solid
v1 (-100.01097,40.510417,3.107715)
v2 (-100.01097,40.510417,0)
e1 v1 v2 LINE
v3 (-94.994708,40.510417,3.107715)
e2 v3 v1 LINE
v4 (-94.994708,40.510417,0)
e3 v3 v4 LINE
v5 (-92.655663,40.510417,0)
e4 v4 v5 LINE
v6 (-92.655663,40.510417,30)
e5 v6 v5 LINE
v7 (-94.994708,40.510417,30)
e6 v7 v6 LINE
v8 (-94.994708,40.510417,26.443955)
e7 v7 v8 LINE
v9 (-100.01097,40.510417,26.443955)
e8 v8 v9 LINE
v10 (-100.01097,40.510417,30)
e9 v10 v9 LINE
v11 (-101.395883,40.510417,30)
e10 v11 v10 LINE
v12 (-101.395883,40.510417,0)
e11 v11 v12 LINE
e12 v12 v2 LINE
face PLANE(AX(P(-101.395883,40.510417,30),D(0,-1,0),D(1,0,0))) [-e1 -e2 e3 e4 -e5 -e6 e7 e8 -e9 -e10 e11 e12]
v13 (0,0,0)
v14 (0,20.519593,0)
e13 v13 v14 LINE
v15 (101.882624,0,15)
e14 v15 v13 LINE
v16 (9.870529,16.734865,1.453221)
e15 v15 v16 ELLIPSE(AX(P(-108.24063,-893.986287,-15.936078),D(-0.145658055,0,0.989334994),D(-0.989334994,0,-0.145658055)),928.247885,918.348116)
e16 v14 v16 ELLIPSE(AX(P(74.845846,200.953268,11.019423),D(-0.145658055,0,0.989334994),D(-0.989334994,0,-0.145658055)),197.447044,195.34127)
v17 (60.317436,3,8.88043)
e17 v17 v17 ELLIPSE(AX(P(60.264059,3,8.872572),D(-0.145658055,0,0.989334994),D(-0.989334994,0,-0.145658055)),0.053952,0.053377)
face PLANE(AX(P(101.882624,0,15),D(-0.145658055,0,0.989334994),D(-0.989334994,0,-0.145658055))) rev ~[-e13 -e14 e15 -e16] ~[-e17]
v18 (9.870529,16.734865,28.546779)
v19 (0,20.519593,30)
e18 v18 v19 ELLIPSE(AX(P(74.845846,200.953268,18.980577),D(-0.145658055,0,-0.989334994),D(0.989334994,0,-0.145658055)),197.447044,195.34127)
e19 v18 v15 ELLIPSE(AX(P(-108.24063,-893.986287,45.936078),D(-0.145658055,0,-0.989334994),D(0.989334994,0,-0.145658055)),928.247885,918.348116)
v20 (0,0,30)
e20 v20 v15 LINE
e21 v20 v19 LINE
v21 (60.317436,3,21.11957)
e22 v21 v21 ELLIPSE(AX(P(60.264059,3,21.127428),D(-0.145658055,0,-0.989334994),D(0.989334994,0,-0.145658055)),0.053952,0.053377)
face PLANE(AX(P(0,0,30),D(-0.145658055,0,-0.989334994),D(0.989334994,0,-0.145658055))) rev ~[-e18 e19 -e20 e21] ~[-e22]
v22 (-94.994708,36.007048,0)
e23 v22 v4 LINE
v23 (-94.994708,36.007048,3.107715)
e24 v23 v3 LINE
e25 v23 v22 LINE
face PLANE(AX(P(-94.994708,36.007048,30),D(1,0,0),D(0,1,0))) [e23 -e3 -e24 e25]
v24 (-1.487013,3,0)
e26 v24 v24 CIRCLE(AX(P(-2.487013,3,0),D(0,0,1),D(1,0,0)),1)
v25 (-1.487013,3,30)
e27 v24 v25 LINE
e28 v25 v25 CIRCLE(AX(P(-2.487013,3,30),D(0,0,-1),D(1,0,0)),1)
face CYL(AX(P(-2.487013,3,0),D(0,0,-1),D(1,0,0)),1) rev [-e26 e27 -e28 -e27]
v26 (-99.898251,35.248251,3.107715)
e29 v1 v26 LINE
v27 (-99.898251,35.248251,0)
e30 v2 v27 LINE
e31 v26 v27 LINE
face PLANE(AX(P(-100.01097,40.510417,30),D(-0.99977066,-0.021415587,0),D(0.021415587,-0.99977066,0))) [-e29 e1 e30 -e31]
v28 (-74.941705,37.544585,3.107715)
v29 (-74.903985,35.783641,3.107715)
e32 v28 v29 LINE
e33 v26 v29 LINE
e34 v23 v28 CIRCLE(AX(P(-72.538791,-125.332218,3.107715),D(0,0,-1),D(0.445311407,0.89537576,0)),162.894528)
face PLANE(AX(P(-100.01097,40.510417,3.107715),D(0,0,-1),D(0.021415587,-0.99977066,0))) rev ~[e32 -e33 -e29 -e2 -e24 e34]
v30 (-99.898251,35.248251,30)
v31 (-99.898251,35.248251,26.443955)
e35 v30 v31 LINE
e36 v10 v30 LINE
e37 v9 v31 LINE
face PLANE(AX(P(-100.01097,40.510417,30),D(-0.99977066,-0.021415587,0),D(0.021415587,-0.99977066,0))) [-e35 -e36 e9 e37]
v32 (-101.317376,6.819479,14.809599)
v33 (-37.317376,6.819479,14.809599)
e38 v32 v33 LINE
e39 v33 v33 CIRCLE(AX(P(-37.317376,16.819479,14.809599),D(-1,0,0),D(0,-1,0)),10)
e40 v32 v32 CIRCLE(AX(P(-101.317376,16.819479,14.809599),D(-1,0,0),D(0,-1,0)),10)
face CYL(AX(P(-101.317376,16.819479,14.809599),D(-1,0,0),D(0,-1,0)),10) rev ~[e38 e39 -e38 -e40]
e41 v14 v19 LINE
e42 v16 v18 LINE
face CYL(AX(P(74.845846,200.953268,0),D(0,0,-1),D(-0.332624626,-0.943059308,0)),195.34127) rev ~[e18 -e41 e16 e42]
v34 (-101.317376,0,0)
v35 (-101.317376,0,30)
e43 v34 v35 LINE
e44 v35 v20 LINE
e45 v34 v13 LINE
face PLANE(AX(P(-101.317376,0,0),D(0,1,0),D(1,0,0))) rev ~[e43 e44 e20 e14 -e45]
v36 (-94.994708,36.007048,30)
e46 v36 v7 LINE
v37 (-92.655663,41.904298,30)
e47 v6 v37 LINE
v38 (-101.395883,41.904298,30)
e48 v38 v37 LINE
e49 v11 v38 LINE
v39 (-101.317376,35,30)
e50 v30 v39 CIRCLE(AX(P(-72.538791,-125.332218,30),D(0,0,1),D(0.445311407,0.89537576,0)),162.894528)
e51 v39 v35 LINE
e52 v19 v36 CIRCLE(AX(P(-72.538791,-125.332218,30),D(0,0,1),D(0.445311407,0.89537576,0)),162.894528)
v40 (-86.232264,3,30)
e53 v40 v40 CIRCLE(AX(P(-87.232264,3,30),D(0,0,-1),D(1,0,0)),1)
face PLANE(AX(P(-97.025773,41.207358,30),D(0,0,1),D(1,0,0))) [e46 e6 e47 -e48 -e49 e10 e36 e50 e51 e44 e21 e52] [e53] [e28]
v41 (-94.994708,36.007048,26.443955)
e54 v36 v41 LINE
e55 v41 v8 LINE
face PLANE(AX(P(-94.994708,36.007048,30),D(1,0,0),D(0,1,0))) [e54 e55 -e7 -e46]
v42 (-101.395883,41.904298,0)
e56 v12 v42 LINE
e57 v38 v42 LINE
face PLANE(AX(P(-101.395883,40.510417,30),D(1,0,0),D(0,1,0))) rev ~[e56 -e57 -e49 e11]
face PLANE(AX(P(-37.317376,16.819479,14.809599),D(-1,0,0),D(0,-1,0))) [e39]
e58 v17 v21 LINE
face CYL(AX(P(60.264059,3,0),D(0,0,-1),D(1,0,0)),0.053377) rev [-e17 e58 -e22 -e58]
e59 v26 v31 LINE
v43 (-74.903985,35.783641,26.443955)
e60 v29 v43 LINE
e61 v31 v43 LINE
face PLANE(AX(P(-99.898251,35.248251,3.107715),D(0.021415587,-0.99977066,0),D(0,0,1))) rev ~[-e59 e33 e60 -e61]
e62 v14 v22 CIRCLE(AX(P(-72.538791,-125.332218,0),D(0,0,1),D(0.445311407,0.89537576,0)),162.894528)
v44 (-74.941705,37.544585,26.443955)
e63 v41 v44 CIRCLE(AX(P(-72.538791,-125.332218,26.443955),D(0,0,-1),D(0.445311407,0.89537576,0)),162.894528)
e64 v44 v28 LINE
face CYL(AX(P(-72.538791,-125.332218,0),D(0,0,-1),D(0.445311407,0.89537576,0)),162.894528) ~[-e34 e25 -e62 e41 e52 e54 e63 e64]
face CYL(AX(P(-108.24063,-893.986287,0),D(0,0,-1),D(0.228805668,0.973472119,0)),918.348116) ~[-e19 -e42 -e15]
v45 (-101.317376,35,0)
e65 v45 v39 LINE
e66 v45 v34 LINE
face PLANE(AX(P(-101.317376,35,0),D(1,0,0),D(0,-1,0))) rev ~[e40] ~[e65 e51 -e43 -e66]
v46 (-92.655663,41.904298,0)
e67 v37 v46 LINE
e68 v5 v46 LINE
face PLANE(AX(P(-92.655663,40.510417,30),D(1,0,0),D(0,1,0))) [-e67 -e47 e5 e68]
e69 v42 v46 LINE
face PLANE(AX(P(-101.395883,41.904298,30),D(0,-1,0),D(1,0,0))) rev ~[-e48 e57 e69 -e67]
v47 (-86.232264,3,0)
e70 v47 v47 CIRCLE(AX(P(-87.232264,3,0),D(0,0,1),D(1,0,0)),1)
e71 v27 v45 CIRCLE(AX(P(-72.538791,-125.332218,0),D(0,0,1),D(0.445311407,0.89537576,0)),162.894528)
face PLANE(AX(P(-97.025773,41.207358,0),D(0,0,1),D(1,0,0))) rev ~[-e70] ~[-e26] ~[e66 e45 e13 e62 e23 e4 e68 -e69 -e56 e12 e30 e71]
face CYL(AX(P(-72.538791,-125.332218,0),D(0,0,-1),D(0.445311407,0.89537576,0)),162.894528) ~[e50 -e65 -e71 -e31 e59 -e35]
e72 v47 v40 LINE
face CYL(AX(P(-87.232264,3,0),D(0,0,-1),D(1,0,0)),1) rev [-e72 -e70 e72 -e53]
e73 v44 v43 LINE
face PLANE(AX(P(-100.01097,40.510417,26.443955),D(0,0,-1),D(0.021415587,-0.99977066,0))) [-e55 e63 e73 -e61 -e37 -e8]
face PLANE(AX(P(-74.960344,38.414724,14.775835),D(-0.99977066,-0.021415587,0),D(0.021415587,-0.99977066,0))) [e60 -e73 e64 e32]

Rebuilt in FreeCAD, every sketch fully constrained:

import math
import FreeCAD as App
import Part
import Sketcher

V = App.Vector
Q = App.Units.Quantity

doc = App.newDocument("Part")
body = doc.addObject("PartDesign::Body", "Body")

# Sketch on XY plane
sketch1 = body.newObject("Sketcher::SketchObject", "Sketch")
sketch1.AttachmentSupport = (doc.getObject("XY_Plane"), [""])
sketch1.MapMode = "FlatFace"
sketch1.addGeometry([
    Part.LineSegment(V(-101, 35, 0), V(-101, 0, 0)),  # 0
    Part.LineSegment(V(-101, 0, 0), V(102, 0, 0)),  # 1
    Part.ArcOfCircle(Part.Circle(V(-108, -894, 0), V(0, 0, 1), 918), math.radians(76.77), math.radians(82.61)),  # 2
    Part.ArcOfCircle(Part.Circle(V(75, 201, 0), V(0, 0, 1), 195), math.radians(-112.53), math.radians(-109.43)),  # 3
    Part.ArcOfCircle(Part.Circle(V(-73, -125, 0), V(0, 0, 1), 163), math.radians(64), math.radians(100)),  # 4
], False)
sketch1.addConstraint([
    Sketcher.Constraint("Coincident", 0, 2, 1, 1),
    Sketcher.Constraint("Coincident", 1, 2, 2, 1),
    Sketcher.Constraint("Coincident", 2, 2, 3, 2),
    Sketcher.Constraint("Coincident", 3, 1, 4, 1),
    Sketcher.Constraint("Coincident", 4, 2, 0, 1),
    Sketcher.Constraint("Vertical", 0),
    Sketcher.Constraint("Horizontal", 1),
    Sketcher.Constraint("PointOnObject", 0, 2, -1),
    Sketcher.Constraint("PointOnObject", 3, 1, -2),
    Sketcher.Constraint("DistanceY", 0, 2, 0, 1, Q("35 mm")),
    Sketcher.Constraint("DistanceX", 1, 1, 1, 2, Q("203.2 mm")),
    Sketcher.Constraint("Radius", 3, Q("195.34127 mm")),
    Sketcher.Constraint("Radius", 2, Q("918.348116 mm")),
    Sketcher.Constraint("Radius", 4, Q("162.894528 mm")),
    Sketcher.Constraint("DistanceX", 2, 3, -1, 1, Q("108.24063 mm")),
    Sketcher.Constraint("DistanceY", -1, 1, 3, 3, Q("200.953268 mm")),
    Sketcher.Constraint("DistanceX", 4, 3, -1, 1, Q("72.538791 mm")),
    Sketcher.Constraint("DistanceY", 4, 3, -1, 1, Q("125.332218 mm")),
])
pad1 = body.newObject("PartDesign::Pad", "Pad")
pad1.Profile = sketch1
pad1.Length = 30

# Sketch on XY plane
sketch2 = body.newObject("Sketcher::SketchObject", "Sketch001")
sketch2.AttachmentSupport = (doc.getObject("XY_Plane"), [""])
sketch2.MapMode = "FlatFace"
sketch2.addGeometry([
    Part.Circle(V(-87.23, 3, 0), V(0, 0, 1), 1),
    Part.Circle(V(60.26, 3, 0), V(0, 0, 1), 0.05),
    Part.Circle(V(-2.49, 3, 0), V(0, 0, 1), 1),
], False)
sketch2.addConstraint([
    Sketcher.Constraint("Equal", 0, 2),
    Sketcher.Constraint("Horizontal", 0, 3, 1, 3),
    Sketcher.Constraint("Horizontal", 1, 3, 2, 3),
    Sketcher.Constraint("Diameter", 0, Q("2 mm")),
    Sketcher.Constraint("DistanceY", -1, 1, 0, 3, Q("3 mm")),
    Sketcher.Constraint("Diameter", 1, Q("0.106753 mm")),
    Sketcher.Constraint("DistanceX", -1, 1, 1, 3, Q("60.264059 mm")),
    Sketcher.Constraint("DistanceX", 2, 3, 1, 3, Q("62.751072 mm")),
    Sketcher.Constraint("DistanceX", 0, 3, 2, 3, Q("84.745251 mm")),
])
pocket1 = body.newObject("PartDesign::Pocket", "Pocket")
pocket1.Profile = sketch2
pocket1.Type = "ThroughAll"
pocket1.Reversed = True

# Sketch on YZ plane
sketch3 = body.newObject("Sketcher::SketchObject", "Sketch002")
sketch3.AttachmentSupport = (doc.getObject("YZ_Plane"), [""])
sketch3.MapMode = "FlatFace"
sketch3.AttachmentOffset = App.Placement(V(0, 0, -101.317376), App.Rotation())
sketch3.addGeometry(Part.Circle(V(17, 15, 0), V(0, 0, 1), 10), False)
sketch3.addConstraint([
    Sketcher.Constraint("Diameter", 0, Q("20 mm")),
    Sketcher.Constraint("DistanceY", -1, 1, 0, 3, Q("14.809599 mm")),
    Sketcher.Constraint("DistanceX", -1, 1, 0, 3, Q("16.819479 mm")),
])
pocket2 = body.newObject("PartDesign::Pocket", "Pocket001")
pocket2.Profile = sketch3
pocket2.Length = 64
pocket2.Reversed = True

# Sketch on XY plane
sketch4 = body.newObject("Sketcher::SketchObject", "Sketch003")
sketch4.AttachmentSupport = (doc.getObject("XY_Plane"), [""])
sketch4.MapMode = "FlatFace"
sketch4.AttachmentOffset = App.Placement(V(0, 0, 30), App.Rotation())
sketch4.addGeometry([
    Part.LineSegment(V(-100.01097, 40.510417, 0), V(-99.898251, 35.248251, 0)),
    Part.BSplineCurve([V(-99.898251, 35.248251, 0), V(-99.169878, 35.208636, 0), V(-95.59699, 35.716166, 0), V(-94.994708, 36.007048, 0)], [4, 4], [0, 4.961906625], False, 3, [1, 1, 1, 1], False),
    Part.LineSegment(V(-94.994708, 36.007048, 0), V(-94.994708, 40.510417, 0)),
    Part.LineSegment(V(-94.994708, 40.510417, 0), V(-100.01097, 40.510417, 0)),
], False)
sketch4.addConstraint([
    Sketcher.Constraint("Block", 1),
    Sketcher.Constraint("Coincident", 0, 2, 1, 1),
    Sketcher.Constraint("Coincident", 1, 2, 2, 1),
    Sketcher.Constraint("Coincident", 2, 2, 3, 1),
    Sketcher.Constraint("Coincident", 3, 2, 0, 1),
    Sketcher.Constraint("Vertical", 2),
    Sketcher.Constraint("Horizontal", 3),
    Sketcher.Constraint("DistanceY", 2, 1, 2, 2, Q("4.503369 mm")),
    Sketcher.Constraint("DistanceX", 3, 2, 3, 1, Q("5.016262 mm")),
])
pad2 = body.newObject("PartDesign::Pad", "Pad001")
pad2.Profile = sketch4
pad2.Length = 30
pad2.Reversed = True

# Sketch on an angled plane
sketch5 = body.newObject("Sketcher::SketchObject", "Sketch004")
sketch5.Placement = App.Placement(V(-99.097747, -2.122723, 0), App.Rotation(V(0.021415587, -0.99977066, 0), V(0, 0, 1), V(-0.99977066, -0.021415587, 0), "ZXY"))
sketch5.addGeometry([
    Part.LineSegment(V(-43, 26, 0), V(-43, 3, 0)),
    Part.LineSegment(V(-43, 3, 0), V(-37, 3, 0)),
    Part.LineSegment(V(-37, 3, 0), V(-37, 26, 0)),
    Part.LineSegment(V(-37, 26, 0), V(-43, 26, 0)),
], False)
sketch5.addConstraint([
    Sketcher.Constraint("Coincident", 0, 2, 1, 1),
    Sketcher.Constraint("Coincident", 1, 2, 2, 1),
    Sketcher.Constraint("Coincident", 2, 2, 3, 1),
    Sketcher.Constraint("Coincident", 3, 2, 0, 1),
    Sketcher.Constraint("Vertical", 0),
    Sketcher.Constraint("Horizontal", 1),
    Sketcher.Constraint("Vertical", 2),
    Sketcher.Constraint("Horizontal", 3),
    Sketcher.Constraint("DistanceY", 0, 2, 0, 1, Q("23.336239 mm")),
    Sketcher.Constraint("DistanceX", 1, 1, 1, 2, Q("5.263374 mm")),
    Sketcher.Constraint("DistanceX", 0, 2, -1, 1, Q("42.64292 mm")),
    Sketcher.Constraint("DistanceY", -1, 1, 0, 2, Q("3.107715 mm")),
])
pocket3 = body.newObject("PartDesign::Pocket", "Pocket002")
pocket3.Profile = sketch5
pocket3.Length = 25

# Sketch on XY plane
sketch6 = body.newObject("Sketcher::SketchObject", "Sketch005")
sketch6.AttachmentSupport = (doc.getObject("XY_Plane"), [""])
sketch6.MapMode = "FlatFace"
sketch6.AttachmentOffset = App.Placement(V(0, 0, 30), App.Rotation())
sketch6.addGeometry([
    Part.LineSegment(V(-101.4, 41.9, 0), V(-101.4, 40.5, 0)),
    Part.LineSegment(V(-101.4, 40.5, 0), V(-92.7, 40.5, 0)),
    Part.LineSegment(V(-92.7, 40.5, 0), V(-92.7, 41.9, 0)),
    Part.LineSegment(V(-92.7, 41.9, 0), V(-101.4, 41.9, 0)),
], False)
sketch6.addConstraint([
    Sketcher.Constraint("Coincident", 0, 2, 1, 1),
    Sketcher.Constraint("Coincident", 1, 2, 2, 1),
    Sketcher.Constraint("Coincident", 2, 2, 3, 1),
    Sketcher.Constraint("Coincident", 3, 2, 0, 1),
    Sketcher.Constraint("Vertical", 0),
    Sketcher.Constraint("Horizontal", 1),
    Sketcher.Constraint("Vertical", 2),
    Sketcher.Constraint("Horizontal", 3),
    Sketcher.Constraint("DistanceX", 1, 1, 1, 2, Q("8.740219 mm")),
    Sketcher.Constraint("DistanceY", 0, 2, 0, 1, Q("1.393881 mm")),
    Sketcher.Constraint("DistanceY", -1, 1, 2, 2, Q("41.904298 mm")),
    Sketcher.Constraint("DistanceX", 0, 2, -1, 1, Q("101.395883 mm")),
])
pad3 = body.newObject("PartDesign::Pad", "Pad002")
pad3.Profile = sketch6
pad3.Length = 30
pad3.Reversed = True

# Sketch on XZ plane
sketch7 = body.newObject("Sketcher::SketchObject", "Sketch006")
sketch7.AttachmentSupport = (doc.getObject("XZ_Plane"), [""])
sketch7.MapMode = "FlatFace"
sketch7.addGeometry([
    Part.LineSegment(V(0, 30, 0), V(102, 15, 0)),  # 0
    Part.LineSegment(V(102, 15, 0), V(102, 30, 0)),  # 1
    Part.LineSegment(V(102, 30, 0), V(0, 30, 0)),  # 2
    Part.LineSegment(V(102, 15, 0), V(0, 0, 0)),  # 3
    Part.LineSegment(V(0, 0, 0), V(102, 0, 0)),  # 4
    Part.LineSegment(V(102, 0, 0), V(102, 15, 0)),  # 5
], False)
sketch7.addConstraint([
    Sketcher.Constraint("Coincident", 0, 2, 1, 1),
    Sketcher.Constraint("Coincident", 1, 2, 2, 1),
    Sketcher.Constraint("Coincident", 2, 2, 0, 1),
    Sketcher.Constraint("Coincident", 3, 2, 4, 1),
    Sketcher.Constraint("Coincident", 4, 2, 5, 1),
    Sketcher.Constraint("Coincident", 5, 2, 3, 1),
    Sketcher.Constraint("Vertical", 1),
    Sketcher.Constraint("Horizontal", 2),
    Sketcher.Constraint("Horizontal", 4),
    Sketcher.Constraint("Vertical", 5),
    Sketcher.Constraint("Coincident", 3, 2, -1, 1),
    Sketcher.Constraint("Coincident", 5, 2, 0, 2),
    Sketcher.Constraint("PointOnObject", 2, 2, -2),
    Sketcher.Constraint("Equal", 1, 5),
    Sketcher.Constraint("DistanceY", 1, 1, 1, 2, Q("15 mm")),
    Sketcher.Constraint("DistanceX", 2, 2, 2, 1, Q("101.882624 mm")),
])
pocket4 = body.newObject("PartDesign::Pocket", "Pocket003")
pocket4.Profile = sketch7
pocket4.Type = "ThroughAll"

doc.recompute()
